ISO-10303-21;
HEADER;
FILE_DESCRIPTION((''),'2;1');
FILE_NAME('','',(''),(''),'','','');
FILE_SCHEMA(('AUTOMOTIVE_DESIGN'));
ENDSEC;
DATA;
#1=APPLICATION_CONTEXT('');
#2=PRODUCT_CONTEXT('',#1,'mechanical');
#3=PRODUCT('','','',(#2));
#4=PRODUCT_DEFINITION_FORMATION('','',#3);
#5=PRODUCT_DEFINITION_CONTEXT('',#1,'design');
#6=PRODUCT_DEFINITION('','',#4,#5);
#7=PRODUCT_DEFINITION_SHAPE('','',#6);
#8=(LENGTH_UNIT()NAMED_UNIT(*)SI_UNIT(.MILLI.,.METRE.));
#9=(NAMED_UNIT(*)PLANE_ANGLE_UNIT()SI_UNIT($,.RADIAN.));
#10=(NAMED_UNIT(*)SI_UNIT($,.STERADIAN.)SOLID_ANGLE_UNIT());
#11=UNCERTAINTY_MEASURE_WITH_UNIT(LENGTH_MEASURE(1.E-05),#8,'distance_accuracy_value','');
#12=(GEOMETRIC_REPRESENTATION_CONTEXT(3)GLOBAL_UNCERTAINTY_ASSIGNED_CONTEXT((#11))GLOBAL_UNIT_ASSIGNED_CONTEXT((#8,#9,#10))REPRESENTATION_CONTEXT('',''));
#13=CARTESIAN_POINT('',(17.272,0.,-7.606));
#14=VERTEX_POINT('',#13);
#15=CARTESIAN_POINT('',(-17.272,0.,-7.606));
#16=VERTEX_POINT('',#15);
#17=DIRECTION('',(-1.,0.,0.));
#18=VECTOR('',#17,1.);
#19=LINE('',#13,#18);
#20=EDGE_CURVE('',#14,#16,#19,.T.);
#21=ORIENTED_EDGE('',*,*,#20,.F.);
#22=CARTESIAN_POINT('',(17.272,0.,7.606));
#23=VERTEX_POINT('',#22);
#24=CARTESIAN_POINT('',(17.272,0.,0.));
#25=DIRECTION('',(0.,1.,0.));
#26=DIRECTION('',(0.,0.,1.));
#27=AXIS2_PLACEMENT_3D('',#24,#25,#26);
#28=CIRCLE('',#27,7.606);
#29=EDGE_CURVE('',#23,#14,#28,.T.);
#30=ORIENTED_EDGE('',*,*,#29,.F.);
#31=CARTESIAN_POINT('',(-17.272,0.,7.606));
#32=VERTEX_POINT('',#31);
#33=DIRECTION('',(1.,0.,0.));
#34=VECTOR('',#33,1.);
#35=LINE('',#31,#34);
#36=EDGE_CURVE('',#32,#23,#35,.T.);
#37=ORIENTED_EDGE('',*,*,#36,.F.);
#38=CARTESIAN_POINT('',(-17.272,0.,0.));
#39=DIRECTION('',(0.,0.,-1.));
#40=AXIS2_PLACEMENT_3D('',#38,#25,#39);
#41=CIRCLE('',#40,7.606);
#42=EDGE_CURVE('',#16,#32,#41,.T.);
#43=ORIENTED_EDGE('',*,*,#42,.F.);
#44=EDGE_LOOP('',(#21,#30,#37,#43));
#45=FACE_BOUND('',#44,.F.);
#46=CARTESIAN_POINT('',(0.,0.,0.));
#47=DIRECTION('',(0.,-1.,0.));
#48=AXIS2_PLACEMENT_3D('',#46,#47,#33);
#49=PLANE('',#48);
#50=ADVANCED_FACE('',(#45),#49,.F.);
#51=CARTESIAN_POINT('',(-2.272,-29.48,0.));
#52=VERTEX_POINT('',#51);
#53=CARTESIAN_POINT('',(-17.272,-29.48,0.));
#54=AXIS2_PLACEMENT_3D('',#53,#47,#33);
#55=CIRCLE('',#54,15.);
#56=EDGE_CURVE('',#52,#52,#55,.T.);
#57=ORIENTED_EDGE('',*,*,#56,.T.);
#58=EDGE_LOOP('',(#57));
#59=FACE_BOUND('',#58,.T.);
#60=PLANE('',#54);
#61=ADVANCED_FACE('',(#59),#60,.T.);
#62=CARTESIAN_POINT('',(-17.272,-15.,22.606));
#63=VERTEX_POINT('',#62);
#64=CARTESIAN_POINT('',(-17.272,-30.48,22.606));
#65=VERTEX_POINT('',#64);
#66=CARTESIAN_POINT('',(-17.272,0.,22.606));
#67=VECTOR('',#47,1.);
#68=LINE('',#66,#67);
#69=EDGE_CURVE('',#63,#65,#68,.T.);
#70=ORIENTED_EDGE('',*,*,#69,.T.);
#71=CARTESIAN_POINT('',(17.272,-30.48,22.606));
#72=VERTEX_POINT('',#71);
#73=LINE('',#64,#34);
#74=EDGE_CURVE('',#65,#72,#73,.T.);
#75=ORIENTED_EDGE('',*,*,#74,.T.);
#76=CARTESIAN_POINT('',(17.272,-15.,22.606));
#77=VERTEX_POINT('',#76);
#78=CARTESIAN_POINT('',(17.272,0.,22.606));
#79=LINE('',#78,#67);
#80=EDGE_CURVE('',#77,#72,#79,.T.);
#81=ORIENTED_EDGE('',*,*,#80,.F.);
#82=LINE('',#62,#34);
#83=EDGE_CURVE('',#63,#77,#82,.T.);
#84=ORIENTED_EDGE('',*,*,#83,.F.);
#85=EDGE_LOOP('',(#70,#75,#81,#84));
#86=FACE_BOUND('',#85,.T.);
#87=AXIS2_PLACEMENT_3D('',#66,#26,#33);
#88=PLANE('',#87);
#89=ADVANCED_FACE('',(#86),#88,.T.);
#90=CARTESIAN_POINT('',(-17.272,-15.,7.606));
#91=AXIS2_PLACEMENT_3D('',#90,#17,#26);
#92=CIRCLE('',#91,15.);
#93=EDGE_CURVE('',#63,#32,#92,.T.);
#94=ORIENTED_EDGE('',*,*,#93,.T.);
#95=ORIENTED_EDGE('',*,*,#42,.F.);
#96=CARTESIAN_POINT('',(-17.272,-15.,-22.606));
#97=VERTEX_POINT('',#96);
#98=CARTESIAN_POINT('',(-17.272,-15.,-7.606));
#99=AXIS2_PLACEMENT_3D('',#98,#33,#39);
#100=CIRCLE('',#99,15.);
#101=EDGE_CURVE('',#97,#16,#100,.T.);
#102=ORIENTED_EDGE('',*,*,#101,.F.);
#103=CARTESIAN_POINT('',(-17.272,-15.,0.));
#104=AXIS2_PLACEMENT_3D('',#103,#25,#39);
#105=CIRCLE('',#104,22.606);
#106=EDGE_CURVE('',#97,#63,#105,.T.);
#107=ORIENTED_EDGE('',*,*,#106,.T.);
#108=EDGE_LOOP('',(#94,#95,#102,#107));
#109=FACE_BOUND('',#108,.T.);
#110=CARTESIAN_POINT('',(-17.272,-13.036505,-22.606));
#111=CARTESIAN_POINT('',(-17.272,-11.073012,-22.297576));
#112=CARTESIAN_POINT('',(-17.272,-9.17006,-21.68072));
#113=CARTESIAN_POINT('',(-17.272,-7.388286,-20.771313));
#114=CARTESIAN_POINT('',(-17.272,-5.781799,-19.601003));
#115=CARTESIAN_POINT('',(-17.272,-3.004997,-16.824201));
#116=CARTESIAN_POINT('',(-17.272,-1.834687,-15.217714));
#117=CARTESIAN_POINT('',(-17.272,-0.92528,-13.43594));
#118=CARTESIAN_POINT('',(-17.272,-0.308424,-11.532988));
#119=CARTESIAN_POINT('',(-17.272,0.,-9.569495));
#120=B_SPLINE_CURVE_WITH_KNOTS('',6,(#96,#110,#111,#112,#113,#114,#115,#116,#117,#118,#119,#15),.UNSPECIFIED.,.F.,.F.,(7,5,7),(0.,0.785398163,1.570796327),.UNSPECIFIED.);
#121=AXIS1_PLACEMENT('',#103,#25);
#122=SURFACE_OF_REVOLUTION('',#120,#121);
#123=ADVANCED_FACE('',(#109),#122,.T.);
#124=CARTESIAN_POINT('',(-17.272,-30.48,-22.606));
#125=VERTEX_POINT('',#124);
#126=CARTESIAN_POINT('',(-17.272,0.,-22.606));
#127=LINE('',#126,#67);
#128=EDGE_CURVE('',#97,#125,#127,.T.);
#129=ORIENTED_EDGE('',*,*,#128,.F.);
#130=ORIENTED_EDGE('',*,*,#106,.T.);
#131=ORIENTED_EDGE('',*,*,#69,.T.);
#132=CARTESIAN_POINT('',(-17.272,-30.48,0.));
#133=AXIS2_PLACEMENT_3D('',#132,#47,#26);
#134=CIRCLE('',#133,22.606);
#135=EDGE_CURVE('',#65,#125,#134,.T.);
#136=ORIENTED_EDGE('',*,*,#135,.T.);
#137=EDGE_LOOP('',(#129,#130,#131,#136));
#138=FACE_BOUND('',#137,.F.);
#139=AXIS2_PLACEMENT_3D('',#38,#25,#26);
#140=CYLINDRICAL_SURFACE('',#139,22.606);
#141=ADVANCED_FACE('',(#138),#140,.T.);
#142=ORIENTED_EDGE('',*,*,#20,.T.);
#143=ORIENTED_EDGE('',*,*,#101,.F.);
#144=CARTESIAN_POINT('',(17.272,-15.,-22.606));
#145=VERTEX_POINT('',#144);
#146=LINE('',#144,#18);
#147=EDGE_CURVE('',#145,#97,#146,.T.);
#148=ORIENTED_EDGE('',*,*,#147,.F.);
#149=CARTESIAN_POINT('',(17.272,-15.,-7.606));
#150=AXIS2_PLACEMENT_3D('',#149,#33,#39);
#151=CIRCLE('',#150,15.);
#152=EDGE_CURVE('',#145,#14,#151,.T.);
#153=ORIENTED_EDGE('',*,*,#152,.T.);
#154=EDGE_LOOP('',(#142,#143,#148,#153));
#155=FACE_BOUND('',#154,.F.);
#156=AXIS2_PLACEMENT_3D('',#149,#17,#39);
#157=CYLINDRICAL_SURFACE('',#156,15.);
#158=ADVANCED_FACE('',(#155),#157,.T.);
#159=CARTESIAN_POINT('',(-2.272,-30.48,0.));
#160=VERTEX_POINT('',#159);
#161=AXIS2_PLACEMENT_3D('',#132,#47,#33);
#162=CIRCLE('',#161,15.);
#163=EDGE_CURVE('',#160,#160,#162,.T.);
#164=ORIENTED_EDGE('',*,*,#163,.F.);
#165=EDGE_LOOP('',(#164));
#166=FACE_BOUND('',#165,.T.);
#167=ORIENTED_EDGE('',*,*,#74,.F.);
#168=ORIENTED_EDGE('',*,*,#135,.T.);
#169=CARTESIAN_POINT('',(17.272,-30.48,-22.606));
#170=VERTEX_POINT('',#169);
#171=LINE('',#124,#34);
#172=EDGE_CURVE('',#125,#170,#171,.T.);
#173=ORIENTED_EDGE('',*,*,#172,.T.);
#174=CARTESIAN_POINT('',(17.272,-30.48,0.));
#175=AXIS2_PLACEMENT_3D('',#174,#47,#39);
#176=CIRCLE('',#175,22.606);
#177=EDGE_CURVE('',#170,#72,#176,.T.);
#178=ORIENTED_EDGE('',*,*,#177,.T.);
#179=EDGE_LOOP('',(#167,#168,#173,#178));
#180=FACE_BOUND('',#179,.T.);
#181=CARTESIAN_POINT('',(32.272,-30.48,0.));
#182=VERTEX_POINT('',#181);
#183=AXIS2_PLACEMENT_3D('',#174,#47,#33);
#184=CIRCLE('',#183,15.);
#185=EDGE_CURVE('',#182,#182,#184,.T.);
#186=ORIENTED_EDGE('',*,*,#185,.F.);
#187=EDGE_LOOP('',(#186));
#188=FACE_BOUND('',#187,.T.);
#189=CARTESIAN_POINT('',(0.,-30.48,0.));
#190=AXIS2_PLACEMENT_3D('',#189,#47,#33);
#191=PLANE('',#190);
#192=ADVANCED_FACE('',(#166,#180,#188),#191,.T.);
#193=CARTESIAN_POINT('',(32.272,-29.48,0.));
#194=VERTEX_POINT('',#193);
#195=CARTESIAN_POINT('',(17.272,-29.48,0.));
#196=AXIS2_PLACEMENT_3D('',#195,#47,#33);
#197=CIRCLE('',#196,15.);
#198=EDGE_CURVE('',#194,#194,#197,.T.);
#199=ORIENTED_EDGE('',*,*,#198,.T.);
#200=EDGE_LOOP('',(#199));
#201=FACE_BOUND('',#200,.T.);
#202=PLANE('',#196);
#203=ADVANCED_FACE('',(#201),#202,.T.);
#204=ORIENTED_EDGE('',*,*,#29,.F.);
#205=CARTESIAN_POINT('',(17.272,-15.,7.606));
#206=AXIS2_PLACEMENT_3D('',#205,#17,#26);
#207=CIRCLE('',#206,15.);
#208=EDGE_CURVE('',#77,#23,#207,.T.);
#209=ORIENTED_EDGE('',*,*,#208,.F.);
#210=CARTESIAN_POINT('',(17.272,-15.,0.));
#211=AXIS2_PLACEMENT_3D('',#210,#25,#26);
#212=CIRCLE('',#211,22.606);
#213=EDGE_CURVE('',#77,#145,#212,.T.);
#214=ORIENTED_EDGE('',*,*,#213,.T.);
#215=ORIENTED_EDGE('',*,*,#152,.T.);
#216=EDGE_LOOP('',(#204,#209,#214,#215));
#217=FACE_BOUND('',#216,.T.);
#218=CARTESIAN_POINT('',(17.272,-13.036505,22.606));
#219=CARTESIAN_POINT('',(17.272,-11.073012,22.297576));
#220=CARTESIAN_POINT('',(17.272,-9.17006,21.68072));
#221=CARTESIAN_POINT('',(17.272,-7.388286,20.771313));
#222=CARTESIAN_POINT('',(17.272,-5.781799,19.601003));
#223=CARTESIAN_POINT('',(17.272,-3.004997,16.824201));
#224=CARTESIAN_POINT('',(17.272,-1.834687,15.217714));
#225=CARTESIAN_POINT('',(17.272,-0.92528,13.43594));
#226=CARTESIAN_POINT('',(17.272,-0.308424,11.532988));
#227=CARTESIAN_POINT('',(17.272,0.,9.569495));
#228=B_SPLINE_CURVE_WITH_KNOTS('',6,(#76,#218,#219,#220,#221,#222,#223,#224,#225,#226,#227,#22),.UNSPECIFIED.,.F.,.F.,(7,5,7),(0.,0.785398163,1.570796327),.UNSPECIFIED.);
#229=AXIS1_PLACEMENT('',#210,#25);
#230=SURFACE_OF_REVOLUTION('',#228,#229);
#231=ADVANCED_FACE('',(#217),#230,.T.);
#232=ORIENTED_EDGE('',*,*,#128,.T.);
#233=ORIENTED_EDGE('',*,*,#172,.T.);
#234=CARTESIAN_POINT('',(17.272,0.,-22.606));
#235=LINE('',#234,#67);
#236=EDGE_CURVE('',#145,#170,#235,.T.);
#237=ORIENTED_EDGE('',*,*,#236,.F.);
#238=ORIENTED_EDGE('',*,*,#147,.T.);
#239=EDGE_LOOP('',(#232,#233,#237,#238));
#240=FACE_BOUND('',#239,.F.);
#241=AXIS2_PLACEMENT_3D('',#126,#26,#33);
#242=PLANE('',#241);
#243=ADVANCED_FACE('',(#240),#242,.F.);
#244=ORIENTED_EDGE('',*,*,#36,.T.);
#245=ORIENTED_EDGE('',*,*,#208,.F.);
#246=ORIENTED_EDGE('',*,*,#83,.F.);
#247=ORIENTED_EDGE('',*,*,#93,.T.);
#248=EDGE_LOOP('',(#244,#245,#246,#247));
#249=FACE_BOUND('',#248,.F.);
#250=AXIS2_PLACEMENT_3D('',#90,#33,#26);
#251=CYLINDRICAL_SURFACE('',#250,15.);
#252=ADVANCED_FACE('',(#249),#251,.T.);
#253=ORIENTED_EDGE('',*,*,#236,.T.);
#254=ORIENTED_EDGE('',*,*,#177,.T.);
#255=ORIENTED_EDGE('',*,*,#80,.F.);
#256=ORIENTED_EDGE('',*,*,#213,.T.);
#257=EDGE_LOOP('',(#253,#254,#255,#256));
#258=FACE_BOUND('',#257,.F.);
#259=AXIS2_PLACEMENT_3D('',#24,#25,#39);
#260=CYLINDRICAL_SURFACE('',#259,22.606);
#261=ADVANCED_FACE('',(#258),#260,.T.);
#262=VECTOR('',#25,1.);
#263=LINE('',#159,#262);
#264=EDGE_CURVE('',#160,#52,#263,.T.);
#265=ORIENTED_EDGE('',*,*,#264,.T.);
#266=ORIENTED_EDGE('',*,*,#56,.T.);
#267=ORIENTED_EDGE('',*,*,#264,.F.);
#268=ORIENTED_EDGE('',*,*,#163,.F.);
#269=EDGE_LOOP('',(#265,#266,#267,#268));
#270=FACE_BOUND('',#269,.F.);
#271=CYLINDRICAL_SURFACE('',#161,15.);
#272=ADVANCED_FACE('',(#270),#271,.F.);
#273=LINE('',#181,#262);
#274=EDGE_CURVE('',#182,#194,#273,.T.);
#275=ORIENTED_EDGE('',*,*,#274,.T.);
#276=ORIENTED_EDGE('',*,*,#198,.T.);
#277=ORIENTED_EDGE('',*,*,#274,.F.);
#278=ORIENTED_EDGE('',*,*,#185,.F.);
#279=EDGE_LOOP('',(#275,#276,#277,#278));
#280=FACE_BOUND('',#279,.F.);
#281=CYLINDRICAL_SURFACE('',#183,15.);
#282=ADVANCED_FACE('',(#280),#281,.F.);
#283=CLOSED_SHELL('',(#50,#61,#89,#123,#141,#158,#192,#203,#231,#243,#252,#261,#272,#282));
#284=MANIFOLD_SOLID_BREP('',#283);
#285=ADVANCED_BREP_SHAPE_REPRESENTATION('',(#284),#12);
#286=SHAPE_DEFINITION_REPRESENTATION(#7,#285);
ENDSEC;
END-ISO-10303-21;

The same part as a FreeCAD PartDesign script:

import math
import FreeCAD as App
import Part
import Sketcher


def edges_at(feature, points):
    """Names of the edges that pass closest to the given points."""
    edges = feature.Shape.Edges
    near = lambda p: min(range(len(edges)), key=lambda i: edges[i].distToShape(Part.Vertex(*p))[0])
    return sorted({f"Edge{near(p) + 1}" for p in points})

doc = App.newDocument("Part")
body = doc.addObject("PartDesign::Body", "Body")

sketch1 = body.newObject("Sketcher::SketchObject", "Sketch")
sketch1.AttachmentSupport = (doc.getObject("XZ_Plane"), [""])
sketch1.MapMode = "FlatFace"
sketch1.addGeometry([
    Part.ArcOfCircle(Part.Circle(App.Vector(-17, 0, 0), App.Vector(0, 0, 1), 23), math.radians(90), math.radians(270)),
    Part.LineSegment(App.Vector(-17, -23, 0), App.Vector(17, -23, 0)),
    Part.ArcOfCircle(Part.Circle(App.Vector(17, 0, 0), App.Vector(0, 0, 1), 23), math.radians(-90), math.radians(90)),
    Part.LineSegment(App.Vector(17, 23, 0), App.Vector(-17, 23, 0)),
], False)
sketch1.addConstraint([
    Sketcher.Constraint("Tangent", 0, 2, 1, 1),
    Sketcher.Constraint("Tangent", 1, 2, 2, 1),
    Sketcher.Constraint("Tangent", 2, 2, 3, 1),
    Sketcher.Constraint("Tangent", 3, 2, 0, 1),
    Sketcher.Constraint("Horizontal", 1),
    Sketcher.Constraint("Horizontal", 3),
    Sketcher.Constraint("Symmetric", 0, 3, 2, 3, -1, 1),
    Sketcher.Constraint("Radius", 0, 22.606),
    Sketcher.Constraint("DistanceX", 1, 1, 1, 2, 34.544),
])
pad1 = body.newObject("PartDesign::Pad", "Pad")
pad1.Profile = sketch1
pad1.Length = 30.48
doc.recompute()

fillet = body.newObject("PartDesign::Fillet", "Fillet")
fillet.Base = (pad1, edges_at(pad1, [(0, 0, 22.606)]))
fillet.Radius = 15

sketch2 = body.newObject("Sketcher::SketchObject", "Sketch001")
sketch2.AttachmentSupport = (doc.getObject("XZ_Plane"), [""])
sketch2.MapMode = "FlatFace"
sketch2.AttachmentOffset = App.Placement(App.Vector(0, 0, 30.48), App.Rotation())
sketch2.addGeometry([
    Part.Circle(App.Vector(-17, 0, 0), App.Vector(0, 0, 1), 15),
    Part.Circle(App.Vector(17, 0, 0), App.Vector(0, 0, 1), 15),
], False)
sketch2.addConstraint([
    Sketcher.Constraint("Equal", 0, 1),
    Sketcher.Constraint("Symmetric", 0, 3, 1, 3, -1, 1),
    Sketcher.Constraint("PointOnObject", 0, 3, -1),
    Sketcher.Constraint("Diameter", 0, 30.0),
    Sketcher.Constraint("DistanceX", 0, 3, -1, 1, 17.272),
])
pocket1 = body.newObject("PartDesign::Pocket", "Pocket")
pocket1.Profile = sketch2
pocket1.Length = 1

doc.recompute()
